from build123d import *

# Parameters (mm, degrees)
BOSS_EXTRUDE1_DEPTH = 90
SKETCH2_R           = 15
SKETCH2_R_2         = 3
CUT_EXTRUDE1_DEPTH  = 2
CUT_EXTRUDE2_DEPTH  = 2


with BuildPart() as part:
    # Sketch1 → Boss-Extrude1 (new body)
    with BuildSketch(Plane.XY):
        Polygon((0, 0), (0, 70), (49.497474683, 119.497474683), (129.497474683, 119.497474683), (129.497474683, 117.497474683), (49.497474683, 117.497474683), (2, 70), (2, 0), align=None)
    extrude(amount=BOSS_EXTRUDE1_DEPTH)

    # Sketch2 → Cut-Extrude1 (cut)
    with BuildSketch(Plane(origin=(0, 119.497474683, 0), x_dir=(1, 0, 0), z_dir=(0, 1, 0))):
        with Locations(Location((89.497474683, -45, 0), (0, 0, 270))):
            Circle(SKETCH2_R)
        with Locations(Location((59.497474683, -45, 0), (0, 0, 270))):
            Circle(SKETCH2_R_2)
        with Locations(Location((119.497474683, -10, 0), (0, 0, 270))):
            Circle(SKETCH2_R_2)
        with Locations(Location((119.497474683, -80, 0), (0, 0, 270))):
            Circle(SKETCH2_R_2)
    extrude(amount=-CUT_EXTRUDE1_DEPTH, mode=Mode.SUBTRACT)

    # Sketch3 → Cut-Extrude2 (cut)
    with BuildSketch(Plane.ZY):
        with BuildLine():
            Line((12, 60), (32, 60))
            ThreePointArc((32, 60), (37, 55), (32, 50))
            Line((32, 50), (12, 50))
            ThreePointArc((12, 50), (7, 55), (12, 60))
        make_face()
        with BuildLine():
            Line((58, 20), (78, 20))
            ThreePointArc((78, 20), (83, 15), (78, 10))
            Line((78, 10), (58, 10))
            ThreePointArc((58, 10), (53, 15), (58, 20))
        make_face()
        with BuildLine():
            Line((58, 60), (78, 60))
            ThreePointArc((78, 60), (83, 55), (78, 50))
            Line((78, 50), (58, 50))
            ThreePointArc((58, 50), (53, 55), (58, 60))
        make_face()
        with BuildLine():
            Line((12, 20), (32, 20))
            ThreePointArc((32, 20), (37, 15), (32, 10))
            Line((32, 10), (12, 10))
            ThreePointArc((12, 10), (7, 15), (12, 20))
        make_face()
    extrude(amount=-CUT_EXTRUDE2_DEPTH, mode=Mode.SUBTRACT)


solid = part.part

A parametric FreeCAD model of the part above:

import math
import FreeCAD as App
import Part
import Sketcher
from FreeCAD import Vector
Q = App.Units.Quantity


def add_polygon(sketch, points):
    """Adds a closed chain of lines whose ends are joined by coincident constraints."""
    first, n = sketch.GeometryCount, len(points)
    for a, b in zip(points, points[1:] + points[:1]):
        sketch.addGeometry(Part.LineSegment(App.Vector(*a, 0), App.Vector(*b, 0)), False)
    for i in range(n):
        sketch.addConstraint(Sketcher.Constraint("Coincident", first + i, 2, first + (i + 1) % n, 1))

doc = App.newDocument("Part")
params = doc.addObject("Spreadsheet::Sheet", "Params")
for row, (alias, value) in enumerate([
    ("sketch1_width", "2 mm"),
    ("sketch1_width2", "80 mm"),
    ("sketch1_height", "70 mm"),
    ("sketch1_length", "70 mm"),
    ("pad1_length", "90 mm"),
    ("sketch2_diameter", "30 mm"),
    ("sketch2_diameter2", "6 mm"),
    ("pocket1_length", "2 mm"),
    ("sketch3_radius", "5 mm"),
    ("sketch3_height", "20 mm"),
    ("pocket2_length", "2 mm"),
], start=1):
    params.set(f"A{row}", alias)
    params.set(f"B{row}", "=" + value)
    params.setAlias(f"B{row}", alias)

body = doc.addObject("PartDesign::Body", "Body")

sketch1 = body.newObject("Sketcher::SketchObject", "Sketch")
sketch1.AttachmentSupport = (doc.getObject("XY_Plane"), [""])
sketch1.MapMode = "FlatFace"
add_polygon(sketch1, [(0, 70), (0, 0), (2, 0), (2, 70), (49.497475, 117.497475), (129.497475, 117.497475), (129.497475, 119.497475), (49.497475, 119.497475)])
sketch1.addConstraint(Sketcher.Constraint("Vertical", 0))
sketch1.addConstraint(Sketcher.Constraint("Horizontal", 1))
sketch1.addConstraint(Sketcher.Constraint("Vertical", 2))
sketch1.addConstraint(Sketcher.Constraint("Horizontal", 4))
sketch1.addConstraint(Sketcher.Constraint("Vertical", 5))
sketch1.addConstraint(Sketcher.Constraint("Horizontal", 6))
sketch1.addConstraint(Sketcher.Constraint("Coincident", 0, 2, -1, 1))
sketch1.addConstraint(Sketcher.Constraint("Parallel", 3, 7))
sketch1.addConstraint(Sketcher.Constraint("Horizontal", 2, 2, 7, 2))
sketch1.addConstraint(Sketcher.Constraint("Vertical", 3, 2, 6, 2))
sketch1.addConstraint(Sketcher.Constraint("Equal", 1, 5))
sketch1.addConstraint(Sketcher.Constraint("DistanceX", 1, 1, 1, 2, Q("2 mm")))
sketch1.addConstraint(Sketcher.Constraint("DistanceX", 4, 1, 4, 2, Q("80 mm")))
sketch1.addConstraint(Sketcher.Constraint("DistanceY", 0, 2, 0, 1, Q("70 mm")))
sketch1.addConstraint(Sketcher.Constraint("Distance", 7, Q("70 mm")))
sketch1.setExpression("Constraints[19]", "Params.sketch1_width")
sketch1.setExpression("Constraints[20]", "Params.sketch1_width2")
sketch1.setExpression("Constraints[21]", "Params.sketch1_height")
sketch1.setExpression("Constraints[22]", "Params.sketch1_length")
pad1 = body.newObject("PartDesign::Pad", "Pad")
pad1.Profile = sketch1
pad1.setExpression("Length", "Params.pad1_length")

sketch2 = body.newObject("Sketcher::SketchObject", "Sketch001")
sketch2.AttachmentSupport = (doc.getObject("XZ_Plane"), [""])
sketch2.MapMode = "FlatFace"
sketch2.AttachmentOffset = App.Placement(Vector(0, 0, -119.497475), App.Rotation())
sketch2.addGeometry(Part.Circle(Vector(89.497475, 45, 0), Vector(0, 0, 1), 15), False)
sketch2.addGeometry(Part.Circle(Vector(59.497475, 45, 0), Vector(0, 0, 1), 3), False)
sketch2.addGeometry(Part.Circle(Vector(119.497475, 10, 0), Vector(0, 0, 1), 3), False)
sketch2.addGeometry(Part.Circle(Vector(119.497475, 80, 0), Vector(0, 0, 1), 3), False)
sketch2.addConstraint(Sketcher.Constraint("Equal", 1, 2))
sketch2.addConstraint(Sketcher.Constraint("Equal", 2, 3))
sketch2.addConstraint(Sketcher.Constraint("Horizontal", 0, 3, 1, 3))
sketch2.addConstraint(Sketcher.Constraint("Vertical", 2, 3, 3, 3))
sketch2.addConstraint(Sketcher.Constraint("Diameter", 0, Q("30 mm")))
sketch2.addConstraint(Sketcher.Constraint("Diameter", 1, Q("6 mm")))
sketch2.addConstraint(Sketcher.Constraint("DistanceY", -1, 1, 0, 3, Q("45 mm")))
sketch2.addConstraint(Sketcher.Constraint("DistanceY", -1, 1, 2, 3, Q("10 mm")))
sketch2.addConstraint(Sketcher.Constraint("DistanceY", -1, 1, 3, 3, Q("80 mm")))
sketch2.addConstraint(Sketcher.Constraint("DistanceX", 1, 3, 0, 3, Q("30 mm")))
sketch2.addConstraint(Sketcher.Constraint("DistanceX", 0, 3, 2, 3, Q("30 mm")))
sketch2.addConstraint(Sketcher.Constraint("DistanceX", -1, 1, 0, 3, Q("89.497475 mm")))
sketch2.setExpression("Constraints[4]", "Params.sketch2_diameter")
sketch2.setExpression("Constraints[5]", "Params.sketch2_diameter2")
pocket1 = body.newObject("PartDesign::Pocket", "Pocket")
pocket1.Profile = sketch2
pocket1.setExpression("Length", "Params.pocket1_length")
pocket1.Reversed = True

sketch3 = body.newObject("Sketcher::SketchObject", "Sketch002")
sketch3.AttachmentSupport = (doc.getObject("YZ_Plane"), [""])
sketch3.MapMode = "FlatFace"
sketch3.addGeometry(Part.LineSegment(Vector(60, 32, 0), Vector(60, 12, 0)), False)
sketch3.addGeometry(Part.ArcOfCircle(Part.Circle(Vector(55, 12, 0), Vector(0, 0, 1), 5), math.radians(180), math.radians(360)), False)
sketch3.addGeometry(Part.LineSegment(Vector(50, 12, 0), Vector(50, 32, 0)), False)
sketch3.addGeometry(Part.ArcOfCircle(Part.Circle(Vector(55, 32, 0), Vector(0, 0, 1), 5), math.radians(0), math.radians(180)), False)
sketch3.addGeometry(Part.LineSegment(Vector(20, 78, 0), Vector(20, 58, 0)), False)
sketch3.addGeometry(Part.ArcOfCircle(Part.Circle(Vector(15, 58, 0), Vector(0, 0, 1), 5), math.radians(180), math.radians(360)), False)
sketch3.addGeometry(Part.LineSegment(Vector(10, 58, 0), Vector(10, 78, 0)), False)
sketch3.addGeometry(Part.ArcOfCircle(Part.Circle(Vector(15, 78, 0), Vector(0, 0, 1), 5), math.radians(0), math.radians(180)), False)
sketch3.addGeometry(Part.LineSegment(Vector(60, 78, 0), Vector(60, 58, 0)), False)
sketch3.addGeometry(Part.ArcOfCircle(Part.Circle(Vector(55, 58, 0), Vector(0, 0, 1), 5), math.radians(180), math.radians(360)), False)
sketch3.addGeometry(Part.LineSegment(Vector(50, 58, 0), Vector(50, 78, 0)), False)
sketch3.addGeometry(Part.ArcOfCircle(Part.Circle(Vector(55, 78, 0), Vector(0, 0, 1), 5), math.radians(0), math.radians(180)), False)
sketch3.addGeometry(Part.LineSegment(Vector(20, 32, 0), Vector(20, 12, 0)), False)
sketch3.addGeometry(Part.ArcOfCircle(Part.Circle(Vector(15, 12, 0), Vector(0, 0, 1), 5), math.radians(180), math.radians(360)), False)
sketch3.addGeometry(Part.LineSegment(Vector(10, 12, 0), Vector(10, 32, 0)), False)
sketch3.addGeometry(Part.ArcOfCircle(Part.Circle(Vector(15, 32, 0), Vector(0, 0, 1), 5), math.radians(0), math.radians(180)), False)
sketch3.addConstraint(Sketcher.Constraint("Tangent", 0, 2, 1, 2))
sketch3.addConstraint(Sketcher.Constraint("Tangent", 1, 1, 2, 1))
sketch3.addConstraint(Sketcher.Constraint("Tangent", 2, 2, 3, 2))
sketch3.addConstraint(Sketcher.Constraint("Tangent", 3, 1, 0, 1))
sketch3.addConstraint(Sketcher.Constraint("Tangent", 4, 2, 5, 2))
sketch3.addConstraint(Sketcher.Constraint("Tangent", 5, 1, 6, 1))
sketch3.addConstraint(Sketcher.Constraint("Tangent", 6, 2, 7, 2))
sketch3.addConstraint(Sketcher.Constraint("Tangent", 7, 1, 4, 1))
sketch3.addConstraint(Sketcher.Constraint("Tangent", 8, 2, 9, 2))
sketch3.addConstraint(Sketcher.Constraint("Tangent", 9, 1, 10, 1))
sketch3.addConstraint(Sketcher.Constraint("Tangent", 10, 2, 11, 2))
sketch3.addConstraint(Sketcher.Constraint("Tangent", 11, 1, 8, 1))
sketch3.addConstraint(Sketcher.Constraint("Tangent", 12, 2, 13, 2))
sketch3.addConstraint(Sketcher.Constraint("Tangent", 13, 1, 14, 1))
sketch3.addConstraint(Sketcher.Constraint("Tangent", 14, 2, 15, 2))
sketch3.addConstraint(Sketcher.Constraint("Tangent", 15, 1, 12, 1))
sketch3.addConstraint(Sketcher.Constraint("Vertical", 0))
sketch3.addConstraint(Sketcher.Constraint("Vertical", 2))
sketch3.addConstraint(Sketcher.Constraint("Vertical", 4))
sketch3.addConstraint(Sketcher.Constraint("Vertical", 6))
sketch3.addConstraint(Sketcher.Constraint("Vertical", 8))
sketch3.addConstraint(Sketcher.Constraint("Vertical", 10))
sketch3.addConstraint(Sketcher.Constraint("Vertical", 12))
sketch3.addConstraint(Sketcher.Constraint("Vertical", 14))
sketch3.addConstraint(Sketcher.Constraint("Equal", 3, 5))
sketch3.addConstraint(Sketcher.Constraint("Equal", 7, 9))
sketch3.addConstraint(Sketcher.Constraint("Equal", 11, 13))
sketch3.addConstraint(Sketcher.Constraint("Horizontal", 5, 3, 9, 3))
sketch3.addConstraint(Sketcher.Constraint("Horizontal", 7, 3, 11, 3))
sketch3.addConstraint(Sketcher.Constraint("Horizontal", 1, 3, 13, 3))
sketch3.addConstraint(Sketcher.Constraint("Horizontal", 3, 3, 15, 3))
sketch3.addConstraint(Sketcher.Constraint("Vertical", 3, 3, 9, 3))
sketch3.addConstraint(Sketcher.Constraint("Vertical", 7, 3, 13, 3))
sketch3.addConstraint(Sketcher.Constraint("Equal", 2, 4))
sketch3.addConstraint(Sketcher.Constraint("Radius", 1, Q("5 mm")))
sketch3.addConstraint(Sketcher.Constraint("DistanceY", 0, 2, 0, 1, Q("20 mm")))
sketch3.addConstraint(Sketcher.Constraint("DistanceX", -1, 1, 1, 3, Q("55 mm")))
sketch3.addConstraint(Sketcher.Constraint("DistanceY", -1, 1, 1, 3, Q("12 mm")))
sketch3.addConstraint(Sketcher.Constraint("DistanceX", -1, 1, 5, 3, Q("15 mm")))
sketch3.addConstraint(Sketcher.Constraint("DistanceY", -1, 1, 5, 3, Q("58 mm")))
sketch3.setExpression("Constraints[34]", "Params.sketch3_radius")
sketch3.setExpression("Constraints[35]", "Params.sketch3_height")
pocket2 = body.newObject("PartDesign::Pocket", "Pocket001")
pocket2.Profile = sketch3
pocket2.setExpression("Length", "Params.pocket2_length")
pocket2.Reversed = True

doc.recompute()
